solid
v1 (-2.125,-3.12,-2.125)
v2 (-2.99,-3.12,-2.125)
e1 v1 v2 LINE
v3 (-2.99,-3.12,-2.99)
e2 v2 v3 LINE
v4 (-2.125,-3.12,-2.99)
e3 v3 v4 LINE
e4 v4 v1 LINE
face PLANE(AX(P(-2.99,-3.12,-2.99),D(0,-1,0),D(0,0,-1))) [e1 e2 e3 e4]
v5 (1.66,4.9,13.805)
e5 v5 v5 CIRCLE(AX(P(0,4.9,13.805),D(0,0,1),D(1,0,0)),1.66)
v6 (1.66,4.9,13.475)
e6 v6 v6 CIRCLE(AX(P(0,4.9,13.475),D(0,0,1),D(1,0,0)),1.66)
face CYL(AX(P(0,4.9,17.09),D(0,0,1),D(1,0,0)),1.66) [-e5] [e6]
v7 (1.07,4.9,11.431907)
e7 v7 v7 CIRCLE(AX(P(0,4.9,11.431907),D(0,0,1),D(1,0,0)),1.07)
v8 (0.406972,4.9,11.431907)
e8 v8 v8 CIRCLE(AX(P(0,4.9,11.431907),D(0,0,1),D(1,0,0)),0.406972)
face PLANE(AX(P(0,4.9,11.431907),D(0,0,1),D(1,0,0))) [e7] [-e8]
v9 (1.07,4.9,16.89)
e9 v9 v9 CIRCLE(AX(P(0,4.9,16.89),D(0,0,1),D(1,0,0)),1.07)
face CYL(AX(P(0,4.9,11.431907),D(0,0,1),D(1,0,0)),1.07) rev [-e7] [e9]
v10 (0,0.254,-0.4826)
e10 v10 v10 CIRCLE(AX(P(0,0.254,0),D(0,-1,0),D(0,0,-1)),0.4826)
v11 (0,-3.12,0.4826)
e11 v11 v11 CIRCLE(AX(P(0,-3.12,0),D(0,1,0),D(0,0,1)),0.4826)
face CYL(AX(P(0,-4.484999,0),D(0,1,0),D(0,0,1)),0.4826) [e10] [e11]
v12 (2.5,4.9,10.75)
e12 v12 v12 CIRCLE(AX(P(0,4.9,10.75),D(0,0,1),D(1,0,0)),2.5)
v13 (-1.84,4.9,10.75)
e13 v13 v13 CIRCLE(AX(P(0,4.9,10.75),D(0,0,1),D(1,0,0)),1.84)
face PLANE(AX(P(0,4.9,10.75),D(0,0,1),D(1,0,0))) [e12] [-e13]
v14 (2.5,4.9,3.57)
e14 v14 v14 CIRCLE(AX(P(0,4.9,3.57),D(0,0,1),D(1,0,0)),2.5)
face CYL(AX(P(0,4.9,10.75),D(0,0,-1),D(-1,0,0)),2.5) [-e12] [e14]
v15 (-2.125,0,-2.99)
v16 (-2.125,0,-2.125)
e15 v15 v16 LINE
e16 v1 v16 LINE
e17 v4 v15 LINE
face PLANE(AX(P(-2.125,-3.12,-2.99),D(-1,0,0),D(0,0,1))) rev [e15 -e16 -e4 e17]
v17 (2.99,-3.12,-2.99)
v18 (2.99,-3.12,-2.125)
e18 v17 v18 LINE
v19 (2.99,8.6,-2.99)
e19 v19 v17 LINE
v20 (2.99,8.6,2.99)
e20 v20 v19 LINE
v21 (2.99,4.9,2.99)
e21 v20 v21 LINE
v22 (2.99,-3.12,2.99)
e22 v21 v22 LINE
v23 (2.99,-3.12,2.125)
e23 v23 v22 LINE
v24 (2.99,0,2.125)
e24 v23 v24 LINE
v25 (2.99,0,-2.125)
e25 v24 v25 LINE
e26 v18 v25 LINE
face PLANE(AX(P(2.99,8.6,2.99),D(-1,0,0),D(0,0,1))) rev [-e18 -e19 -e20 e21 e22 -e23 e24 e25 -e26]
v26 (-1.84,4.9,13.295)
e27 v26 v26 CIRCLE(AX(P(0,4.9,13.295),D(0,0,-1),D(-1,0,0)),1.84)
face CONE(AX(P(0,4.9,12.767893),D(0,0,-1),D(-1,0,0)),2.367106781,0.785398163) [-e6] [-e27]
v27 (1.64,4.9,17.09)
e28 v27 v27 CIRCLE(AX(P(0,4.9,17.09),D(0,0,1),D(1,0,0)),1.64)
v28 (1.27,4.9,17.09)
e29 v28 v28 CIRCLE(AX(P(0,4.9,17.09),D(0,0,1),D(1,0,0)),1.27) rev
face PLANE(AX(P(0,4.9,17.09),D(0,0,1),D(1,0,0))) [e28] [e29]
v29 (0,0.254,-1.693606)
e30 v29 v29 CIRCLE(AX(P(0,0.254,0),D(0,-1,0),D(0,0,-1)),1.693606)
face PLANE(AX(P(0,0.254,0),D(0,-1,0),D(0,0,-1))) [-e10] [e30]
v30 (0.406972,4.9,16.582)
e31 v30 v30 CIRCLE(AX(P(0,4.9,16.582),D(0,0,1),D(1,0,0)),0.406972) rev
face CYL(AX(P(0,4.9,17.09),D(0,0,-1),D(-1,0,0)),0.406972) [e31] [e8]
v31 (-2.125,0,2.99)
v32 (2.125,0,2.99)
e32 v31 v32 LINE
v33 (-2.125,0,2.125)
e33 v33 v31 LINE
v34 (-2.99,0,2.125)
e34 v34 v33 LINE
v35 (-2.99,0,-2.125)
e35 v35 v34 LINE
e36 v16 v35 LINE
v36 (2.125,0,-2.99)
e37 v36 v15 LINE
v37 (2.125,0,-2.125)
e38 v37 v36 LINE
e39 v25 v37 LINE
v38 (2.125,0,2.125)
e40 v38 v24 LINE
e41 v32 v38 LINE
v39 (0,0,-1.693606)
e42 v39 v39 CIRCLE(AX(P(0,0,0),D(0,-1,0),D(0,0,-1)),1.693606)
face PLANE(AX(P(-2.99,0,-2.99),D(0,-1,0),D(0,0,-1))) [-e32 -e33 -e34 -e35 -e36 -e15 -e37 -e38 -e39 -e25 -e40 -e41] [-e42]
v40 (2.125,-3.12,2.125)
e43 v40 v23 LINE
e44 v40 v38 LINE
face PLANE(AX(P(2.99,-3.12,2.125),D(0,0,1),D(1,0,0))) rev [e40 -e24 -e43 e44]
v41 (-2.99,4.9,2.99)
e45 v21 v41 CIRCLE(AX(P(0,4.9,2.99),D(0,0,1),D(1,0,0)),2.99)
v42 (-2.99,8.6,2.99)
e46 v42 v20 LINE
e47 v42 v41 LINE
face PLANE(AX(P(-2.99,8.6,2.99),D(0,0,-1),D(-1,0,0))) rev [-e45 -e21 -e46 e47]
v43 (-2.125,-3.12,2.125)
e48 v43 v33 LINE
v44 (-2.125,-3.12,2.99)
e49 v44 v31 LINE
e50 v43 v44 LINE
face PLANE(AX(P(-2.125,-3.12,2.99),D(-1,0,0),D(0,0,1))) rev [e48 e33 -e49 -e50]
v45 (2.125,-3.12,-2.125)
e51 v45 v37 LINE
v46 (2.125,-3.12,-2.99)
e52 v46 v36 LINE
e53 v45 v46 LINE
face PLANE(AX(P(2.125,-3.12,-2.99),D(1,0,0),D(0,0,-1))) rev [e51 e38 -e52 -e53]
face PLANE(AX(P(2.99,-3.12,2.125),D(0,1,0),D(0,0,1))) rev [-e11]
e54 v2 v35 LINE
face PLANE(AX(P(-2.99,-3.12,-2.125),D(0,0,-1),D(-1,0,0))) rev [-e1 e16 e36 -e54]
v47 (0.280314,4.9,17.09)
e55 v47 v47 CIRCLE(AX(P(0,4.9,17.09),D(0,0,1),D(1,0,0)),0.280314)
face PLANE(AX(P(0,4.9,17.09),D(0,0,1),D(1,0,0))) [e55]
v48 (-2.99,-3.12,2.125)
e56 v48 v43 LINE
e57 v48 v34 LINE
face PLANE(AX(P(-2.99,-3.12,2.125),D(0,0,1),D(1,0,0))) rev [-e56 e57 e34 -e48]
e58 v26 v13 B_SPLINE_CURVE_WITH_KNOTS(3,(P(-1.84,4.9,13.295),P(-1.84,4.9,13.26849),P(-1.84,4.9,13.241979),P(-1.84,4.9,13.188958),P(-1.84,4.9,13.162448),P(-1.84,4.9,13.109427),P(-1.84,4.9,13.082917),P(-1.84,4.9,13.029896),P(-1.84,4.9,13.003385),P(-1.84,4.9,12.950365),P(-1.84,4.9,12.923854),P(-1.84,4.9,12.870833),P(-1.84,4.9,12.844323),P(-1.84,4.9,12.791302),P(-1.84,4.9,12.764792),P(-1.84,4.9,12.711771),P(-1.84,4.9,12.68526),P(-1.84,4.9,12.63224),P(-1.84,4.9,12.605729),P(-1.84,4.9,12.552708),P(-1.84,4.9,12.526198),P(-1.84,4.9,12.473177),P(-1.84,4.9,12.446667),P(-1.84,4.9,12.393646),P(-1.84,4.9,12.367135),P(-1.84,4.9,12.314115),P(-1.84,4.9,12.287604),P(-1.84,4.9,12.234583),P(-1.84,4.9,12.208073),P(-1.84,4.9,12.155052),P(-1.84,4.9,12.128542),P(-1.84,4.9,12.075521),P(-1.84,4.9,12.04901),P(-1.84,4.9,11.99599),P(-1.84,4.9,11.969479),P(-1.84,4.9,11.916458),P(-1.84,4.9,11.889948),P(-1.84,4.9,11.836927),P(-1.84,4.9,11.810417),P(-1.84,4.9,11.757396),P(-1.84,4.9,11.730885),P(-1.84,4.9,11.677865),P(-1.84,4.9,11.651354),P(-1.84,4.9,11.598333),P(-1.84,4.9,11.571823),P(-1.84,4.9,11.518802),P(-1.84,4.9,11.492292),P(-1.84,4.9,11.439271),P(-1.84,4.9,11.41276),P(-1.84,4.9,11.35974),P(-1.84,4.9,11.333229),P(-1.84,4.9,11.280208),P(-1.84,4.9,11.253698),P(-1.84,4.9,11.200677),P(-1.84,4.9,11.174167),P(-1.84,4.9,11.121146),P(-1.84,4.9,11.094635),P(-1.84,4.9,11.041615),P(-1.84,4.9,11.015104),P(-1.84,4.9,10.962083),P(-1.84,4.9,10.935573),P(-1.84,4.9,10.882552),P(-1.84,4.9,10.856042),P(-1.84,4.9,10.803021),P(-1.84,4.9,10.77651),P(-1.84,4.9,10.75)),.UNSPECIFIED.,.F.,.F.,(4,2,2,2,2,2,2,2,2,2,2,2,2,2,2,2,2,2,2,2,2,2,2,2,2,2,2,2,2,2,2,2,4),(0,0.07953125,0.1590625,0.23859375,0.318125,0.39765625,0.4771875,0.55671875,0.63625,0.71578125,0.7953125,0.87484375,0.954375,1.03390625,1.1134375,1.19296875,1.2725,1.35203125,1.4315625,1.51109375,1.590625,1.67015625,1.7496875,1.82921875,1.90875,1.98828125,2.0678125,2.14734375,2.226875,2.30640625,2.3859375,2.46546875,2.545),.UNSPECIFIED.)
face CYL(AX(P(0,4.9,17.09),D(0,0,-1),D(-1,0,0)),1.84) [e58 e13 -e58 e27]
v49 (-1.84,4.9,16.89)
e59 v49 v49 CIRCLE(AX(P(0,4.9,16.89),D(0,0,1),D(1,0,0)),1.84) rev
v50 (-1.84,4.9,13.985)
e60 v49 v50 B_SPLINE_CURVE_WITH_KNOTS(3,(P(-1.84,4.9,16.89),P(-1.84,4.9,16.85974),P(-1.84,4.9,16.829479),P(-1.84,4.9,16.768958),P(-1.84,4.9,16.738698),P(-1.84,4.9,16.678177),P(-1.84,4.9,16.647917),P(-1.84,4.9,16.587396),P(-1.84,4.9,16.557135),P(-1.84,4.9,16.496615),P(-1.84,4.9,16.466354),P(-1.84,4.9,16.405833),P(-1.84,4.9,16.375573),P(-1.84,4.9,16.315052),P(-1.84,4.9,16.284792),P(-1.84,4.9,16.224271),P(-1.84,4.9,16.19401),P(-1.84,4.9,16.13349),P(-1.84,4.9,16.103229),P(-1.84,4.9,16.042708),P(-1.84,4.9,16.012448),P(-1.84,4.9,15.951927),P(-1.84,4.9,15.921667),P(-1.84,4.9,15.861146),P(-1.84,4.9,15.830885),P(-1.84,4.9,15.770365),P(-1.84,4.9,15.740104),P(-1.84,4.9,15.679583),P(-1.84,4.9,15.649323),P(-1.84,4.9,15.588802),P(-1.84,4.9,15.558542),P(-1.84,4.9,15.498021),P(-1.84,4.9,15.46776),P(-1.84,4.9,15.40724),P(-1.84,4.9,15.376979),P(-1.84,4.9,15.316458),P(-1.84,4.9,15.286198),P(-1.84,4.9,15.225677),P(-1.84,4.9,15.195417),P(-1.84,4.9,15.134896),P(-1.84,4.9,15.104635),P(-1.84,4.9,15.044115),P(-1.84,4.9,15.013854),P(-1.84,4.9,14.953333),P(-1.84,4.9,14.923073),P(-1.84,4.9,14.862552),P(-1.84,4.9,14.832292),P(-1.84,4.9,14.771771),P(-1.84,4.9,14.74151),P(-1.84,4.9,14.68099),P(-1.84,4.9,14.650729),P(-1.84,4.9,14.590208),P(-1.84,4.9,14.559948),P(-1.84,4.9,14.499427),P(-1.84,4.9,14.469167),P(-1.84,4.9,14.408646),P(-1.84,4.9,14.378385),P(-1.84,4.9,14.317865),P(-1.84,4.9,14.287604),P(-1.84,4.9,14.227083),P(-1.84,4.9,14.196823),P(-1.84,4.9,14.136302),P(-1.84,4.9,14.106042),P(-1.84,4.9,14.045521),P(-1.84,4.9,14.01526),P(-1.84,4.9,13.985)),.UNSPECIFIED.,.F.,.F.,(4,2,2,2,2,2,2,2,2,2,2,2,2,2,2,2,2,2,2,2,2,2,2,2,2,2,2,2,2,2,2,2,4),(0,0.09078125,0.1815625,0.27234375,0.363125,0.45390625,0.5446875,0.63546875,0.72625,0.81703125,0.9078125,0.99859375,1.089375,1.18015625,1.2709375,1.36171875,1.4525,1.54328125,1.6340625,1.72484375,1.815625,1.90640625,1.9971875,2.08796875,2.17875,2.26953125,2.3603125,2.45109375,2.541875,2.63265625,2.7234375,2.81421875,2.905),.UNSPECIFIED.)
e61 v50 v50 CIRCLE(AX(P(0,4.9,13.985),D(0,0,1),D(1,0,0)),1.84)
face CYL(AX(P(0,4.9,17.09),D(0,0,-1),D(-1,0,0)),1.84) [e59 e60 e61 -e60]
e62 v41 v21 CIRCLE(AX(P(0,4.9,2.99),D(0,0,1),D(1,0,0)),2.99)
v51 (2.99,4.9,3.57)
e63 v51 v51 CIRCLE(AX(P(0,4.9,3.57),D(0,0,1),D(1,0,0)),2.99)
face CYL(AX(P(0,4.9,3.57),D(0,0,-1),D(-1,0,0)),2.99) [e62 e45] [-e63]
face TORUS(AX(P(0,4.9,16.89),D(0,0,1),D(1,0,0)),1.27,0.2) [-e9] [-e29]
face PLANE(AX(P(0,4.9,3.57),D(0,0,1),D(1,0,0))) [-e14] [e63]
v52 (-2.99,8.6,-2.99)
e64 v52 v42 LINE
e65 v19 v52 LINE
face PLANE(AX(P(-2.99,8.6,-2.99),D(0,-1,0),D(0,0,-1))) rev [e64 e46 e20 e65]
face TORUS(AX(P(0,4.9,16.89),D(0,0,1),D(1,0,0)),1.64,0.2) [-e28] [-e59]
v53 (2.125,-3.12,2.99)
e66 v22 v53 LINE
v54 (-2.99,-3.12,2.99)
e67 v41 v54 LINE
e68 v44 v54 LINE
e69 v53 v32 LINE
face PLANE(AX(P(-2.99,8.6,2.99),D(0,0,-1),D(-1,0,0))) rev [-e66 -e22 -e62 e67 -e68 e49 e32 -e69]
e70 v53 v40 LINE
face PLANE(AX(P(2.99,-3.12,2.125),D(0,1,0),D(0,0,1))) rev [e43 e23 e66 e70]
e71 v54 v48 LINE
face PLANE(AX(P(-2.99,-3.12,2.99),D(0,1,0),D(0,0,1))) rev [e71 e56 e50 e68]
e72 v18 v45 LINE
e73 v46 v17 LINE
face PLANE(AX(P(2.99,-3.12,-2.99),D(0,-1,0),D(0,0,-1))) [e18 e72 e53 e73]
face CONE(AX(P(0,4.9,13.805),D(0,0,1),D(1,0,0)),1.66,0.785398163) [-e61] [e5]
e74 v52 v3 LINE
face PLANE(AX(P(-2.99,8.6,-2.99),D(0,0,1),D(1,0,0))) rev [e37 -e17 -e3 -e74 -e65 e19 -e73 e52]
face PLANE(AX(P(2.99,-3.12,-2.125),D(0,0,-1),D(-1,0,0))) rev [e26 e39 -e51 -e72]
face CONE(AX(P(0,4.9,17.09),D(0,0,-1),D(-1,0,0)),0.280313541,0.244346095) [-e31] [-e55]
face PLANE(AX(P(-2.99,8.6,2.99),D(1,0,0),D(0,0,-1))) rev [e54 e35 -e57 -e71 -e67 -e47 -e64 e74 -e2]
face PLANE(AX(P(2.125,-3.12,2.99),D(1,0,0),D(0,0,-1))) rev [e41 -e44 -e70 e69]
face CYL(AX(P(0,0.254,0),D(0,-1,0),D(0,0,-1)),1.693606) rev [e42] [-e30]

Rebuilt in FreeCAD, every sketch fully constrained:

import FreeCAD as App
import Part
import Sketcher

V = App.Vector
Q = App.Units.Quantity


def edges_at(feature, points):
    """Names of the edges that pass closest to the given points."""
    edges = feature.Shape.Edges
    near = lambda p: min(range(len(edges)), key=lambda i: edges[i].distToShape(Part.Vertex(*p))[0])
    return sorted({f"Edge{near(p) + 1}" for p in points})


def add_polygon(sketch, points):
    """Adds a closed chain of lines whose ends are joined by coincident constraints."""
    first, n = sketch.GeometryCount, len(points)
    for a, b in zip(points, points[1:] + points[:1]):
        sketch.addGeometry(Part.LineSegment(App.Vector(*a, 0), App.Vector(*b, 0)), False)
    for i in range(n):
        sketch.addConstraint(Sketcher.Constraint("Coincident", first + i, 2, first + (i + 1) % n, 1))

doc = App.newDocument("Part")
body = doc.addObject("PartDesign::Body", "Body")

# Sketch on XZ plane
sketch1 = doc.addObject("Sketcher::SketchObject", "Sketch")
body.addObject(sketch1)
sketch1.AttachmentSupport = (doc.XZ_Plane, [""])
sketch1.MapMode = "FlatFace"
add_polygon(sketch1, [(-2.99, -2.99), (-2.99, 2.99), (2.99, 2.99), (2.99, -2.99)])  # lines 0-3
sketch1.addConstraint(Sketcher.Constraint("Vertical", 0))
sketch1.addConstraint(Sketcher.Constraint("Horizontal", 1))
sketch1.addConstraint(Sketcher.Constraint("Vertical", 2))
sketch1.addConstraint(Sketcher.Constraint("Horizontal", 3))
sketch1.addConstraint(Sketcher.Constraint("Symmetric", 0, 2, 2, 2, -1, 1))
sketch1.addConstraint(Sketcher.Constraint("Equal", 3, 0))
sketch1.addConstraint(Sketcher.Constraint("DistanceX", 1, 1, 1, 2, Q("5.98 mm")))
pad1 = doc.addObject("PartDesign::Pad", "Pad")
body.addObject(pad1)
pad1.Profile = sketch1
pad1.Length = 8.6
pad1.Reversed = True

# Sketch on XZ plane
sketch2 = doc.addObject("Sketcher::SketchObject", "Sketch001")
body.addObject(sketch2)
sketch2.AttachmentSupport = (doc.XZ_Plane, [""])
sketch2.MapMode = "FlatFace"
add_polygon(sketch2, [(2.125, 2.99), (2.125, 2.125), (2.99, 2.125), (2.99, 2.99)])  # lines 0-3
add_polygon(sketch2, [(2.125, -2.125), (2.125, -2.99), (2.99, -2.99), (2.99, -2.125)])  # lines 4-7
add_polygon(sketch2, [(-2.99, -2.125), (-2.99, -2.99), (-2.125, -2.99), (-2.125, -2.125)])  # lines 8-11
add_polygon(sketch2, [(-2.99, 2.99), (-2.99, 2.125), (-2.125, 2.125), (-2.125, 2.99)])  # lines 12-15
sketch2.addConstraint(Sketcher.Constraint("Vertical", 0))
sketch2.addConstraint(Sketcher.Constraint("Horizontal", 1))
sketch2.addConstraint(Sketcher.Constraint("Vertical", 2))
sketch2.addConstraint(Sketcher.Constraint("Horizontal", 3))
sketch2.addConstraint(Sketcher.Constraint("Vertical", 4))
sketch2.addConstraint(Sketcher.Constraint("Horizontal", 5))
sketch2.addConstraint(Sketcher.Constraint("Vertical", 6))
sketch2.addConstraint(Sketcher.Constraint("Horizontal", 7))
sketch2.addConstraint(Sketcher.Constraint("Vertical", 8))
sketch2.addConstraint(Sketcher.Constraint("Horizontal", 9))
sketch2.addConstraint(Sketcher.Constraint("Vertical", 10))
sketch2.addConstraint(Sketcher.Constraint("Horizontal", 11))
sketch2.addConstraint(Sketcher.Constraint("Vertical", 12))
sketch2.addConstraint(Sketcher.Constraint("Horizontal", 13))
sketch2.addConstraint(Sketcher.Constraint("Vertical", 14))
sketch2.addConstraint(Sketcher.Constraint("Horizontal", 15))
sketch2.addConstraint(Sketcher.Constraint("Symmetric", 2, 2, 8, 2, -1, 1))
sketch2.addConstraint(Sketcher.Constraint("Symmetric", 0, 2, 10, 2, -1, 1))
sketch2.addConstraint(Sketcher.Constraint("Symmetric", 6, 2, 12, 2, -1, 1))
sketch2.addConstraint(Sketcher.Constraint("Symmetric", 4, 2, 14, 2, -1, 1))
sketch2.addConstraint(Sketcher.Constraint("Symmetric", 5, 2, 8, 2, -2))
sketch2.addConstraint(Sketcher.Constraint("Symmetric", 7, 2, 10, 2, -2))
sketch2.addConstraint(Sketcher.Constraint("Equal", 15, 0))
sketch2.addConstraint(Sketcher.Constraint("DistanceX", 1, 1, 1, 2, Q("0.865 mm")))
sketch2.addConstraint(Sketcher.Constraint("DistanceX", -1, 1, 1, 2, Q("2.99 mm")))
sketch2.addConstraint(Sketcher.Constraint("DistanceY", -1, 1, 2, 2, Q("2.99 mm")))
pad2 = doc.addObject("PartDesign::Pad", "Pad001")
body.addObject(pad2)
pad2.Profile = sketch2
pad2.Length = 3.12

# Sketch on XZ plane
sketch3 = doc.addObject("Sketcher::SketchObject", "Sketch002")
body.addObject(sketch3)
sketch3.AttachmentSupport = (doc.XZ_Plane, [""])
sketch3.MapMode = "FlatFace"
sketch3.addGeometry(Part.Circle(V(0, 0, 0), V(0, 0, 1), 1.693606), False)
sketch3.addConstraint(Sketcher.Constraint("Coincident", 0, 3, -1, 1))
sketch3.addConstraint(Sketcher.Constraint("Diameter", 0, Q("3.387211 mm")))
pocket1 = doc.addObject("PartDesign::Pocket", "Pocket")
body.addObject(pocket1)
pocket1.Profile = sketch3
pocket1.Length = 0.254

# Sketch on XZ plane
sketch4 = doc.addObject("Sketcher::SketchObject", "Sketch003")
body.addObject(sketch4)
sketch4.AttachmentSupport = (doc.XZ_Plane, [""])
sketch4.MapMode = "FlatFace"
sketch4.AttachmentOffset = App.Placement(V(0, 0, -0.254), App.Rotation())
sketch4.addGeometry(Part.Circle(V(0, 0, 0), V(0, 0, 1), 0.4826), False)
sketch4.addConstraint(Sketcher.Constraint("Coincident", 0, 3, -1, 1))
sketch4.addConstraint(Sketcher.Constraint("Diameter", 0, Q("0.9652 mm")))
pad3 = doc.addObject("PartDesign::Pad", "Pad002")
body.addObject(pad3)
pad3.Profile = sketch4
pad3.Length = 3.374

# Sketch on XY plane
sketch5 = doc.addObject("Sketcher::SketchObject", "Sketch004")
body.addObject(sketch5)
sketch5.AttachmentSupport = (doc.XY_Plane, [""])
sketch5.MapMode = "FlatFace"
sketch5.AttachmentOffset = App.Placement(V(0, 0, 2.99), App.Rotation())
sketch5.addGeometry(Part.Circle(V(0, 4.9, 0), V(0, 0, 1), 2.99), False)
sketch5.addConstraint(Sketcher.Constraint("PointOnObject", 0, 3, -2))
sketch5.addConstraint(Sketcher.Constraint("Diameter", 0, Q("5.98 mm")))
sketch5.addConstraint(Sketcher.Constraint("DistanceY", -1, 1, 0, 3, Q("4.9 mm")))
pad4 = doc.addObject("PartDesign::Pad", "Pad003")
body.addObject(pad4)
pad4.Profile = sketch5
pad4.Length = 0.58

# Sketch on XY plane
sketch6 = doc.addObject("Sketcher::SketchObject", "Sketch005")
body.addObject(sketch6)
sketch6.AttachmentSupport = (doc.XY_Plane, [""])
sketch6.MapMode = "FlatFace"
sketch6.AttachmentOffset = App.Placement(V(0, 0, 3.57), App.Rotation())
sketch6.addGeometry(Part.Circle(V(0, 4.9, 0), V(0, 0, 1), 2.5), False)
sketch6.addConstraint(Sketcher.Constraint("PointOnObject", 0, 3, -2))
sketch6.addConstraint(Sketcher.Constraint("Diameter", 0, Q("5 mm")))
sketch6.addConstraint(Sketcher.Constraint("DistanceY", -1, 1, 0, 3, Q("4.9 mm")))
pad5 = doc.addObject("PartDesign::Pad", "Pad004")
body.addObject(pad5)
pad5.Profile = sketch6
pad5.Length = 7.18

# Sketch on XY plane
sketch7 = doc.addObject("Sketcher::SketchObject", "Sketch006")
body.addObject(sketch7)
sketch7.AttachmentSupport = (doc.XY_Plane, [""])
sketch7.MapMode = "FlatFace"
sketch7.AttachmentOffset = App.Placement(V(0, 0, 10.75), App.Rotation())
sketch7.addGeometry(Part.Circle(V(0, 4.9, 0), V(0, 0, 1), 1.84), False)
sketch7.addConstraint(Sketcher.Constraint("PointOnObject", 0, 3, -2))
sketch7.addConstraint(Sketcher.Constraint("Diameter", 0, Q("3.68 mm")))
sketch7.addConstraint(Sketcher.Constraint("DistanceY", -1, 1, 0, 3, Q("4.9 mm")))
pad6 = doc.addObject("PartDesign::Pad", "Pad005")
body.addObject(pad6)
pad6.Profile = sketch7
pad6.Length = 6.34

# Sketch on XZ plane
sketch8 = doc.addObject("Sketcher::SketchObject", "Sketch007")
body.addObject(sketch8)
sketch8.AttachmentSupport = (doc.XZ_Plane, [""])
sketch8.MapMode = "FlatFace"
sketch8.AttachmentOffset = App.Placement(V(0, 0, -4.9), App.Rotation())
add_polygon(sketch8, [(1.66, 13.805), (2.367107, 14.512107), (2.367107, 12.767893), (1.66, 13.475)])  # lines 0-3
sketch8.addConstraint(Sketcher.Constraint("Vertical", 1))
sketch8.addConstraint(Sketcher.Constraint("Vertical", 3))
sketch8.addConstraint(Sketcher.Constraint("Perpendicular", 0, 2))
sketch8.addConstraint(Sketcher.Constraint("Equal", 0, 2))
sketch8.addConstraint(Sketcher.Constraint("Distance", 0, Q("1 mm")))
sketch8.addConstraint(Sketcher.Constraint("DistanceY", 3, 1, 3, 2, Q("0.33 mm")))
sketch8.addConstraint(Sketcher.Constraint("DistanceX", -1, 1, 2, 2, Q("1.66 mm")))
sketch8.addConstraint(Sketcher.Constraint("DistanceY", -1, 1, 2, 2, Q("13.475 mm")))
groove = doc.addObject("PartDesign::Groove", "Groove")
body.addObject(groove)
groove.Profile = sketch8
groove.ReferenceAxis = (sketch8, ["V_Axis"])
groove.Angle = 360

# Sketch on XY plane
sketch9 = doc.addObject("Sketcher::SketchObject", "Sketch008")
body.addObject(sketch9)
sketch9.AttachmentSupport = (doc.XY_Plane, [""])
sketch9.MapMode = "FlatFace"
sketch9.AttachmentOffset = App.Placement(V(0, 0, 17.09), App.Rotation())
sketch9.addGeometry(Part.Circle(V(0, 4.9, 0), V(0, 0, 1), 1.07), False)
sketch9.addConstraint(Sketcher.Constraint("PointOnObject", 0, 3, -2))
sketch9.addConstraint(Sketcher.Constraint("Diameter", 0, Q("2.14 mm")))
sketch9.addConstraint(Sketcher.Constraint("DistanceY", -1, 1, 0, 3, Q("4.9 mm")))
pocket2 = doc.addObject("PartDesign::Pocket", "Pocket001")
body.addObject(pocket2)
pocket2.Profile = sketch9
pocket2.Length = 5.658093

# Sketch on XY plane
sketch10 = doc.addObject("Sketcher::SketchObject", "Sketch009")
body.addObject(sketch10)
sketch10.AttachmentSupport = (doc.XY_Plane, [""])
sketch10.MapMode = "FlatFace"
sketch10.AttachmentOffset = App.Placement(V(0, 0, 11.431907), App.Rotation())
sketch10.addGeometry(Part.Circle(V(0, 4.9, 0), V(0, 0, 1), 0.406972), False)
sketch10.addConstraint(Sketcher.Constraint("PointOnObject", 0, 3, -2))
sketch10.addConstraint(Sketcher.Constraint("DistanceY", -1, 1, 0, 3, Q("4.9 mm")))
sketch10.addConstraint(Sketcher.Constraint("Diameter", 0, Q("0.813944 mm")))
pad7 = doc.addObject("PartDesign::Pad", "Pad006")
body.addObject(pad7)
pad7.Profile = sketch10
pad7.Length = 5.658093
doc.recompute()

chamfer = doc.addObject("PartDesign::Chamfer", "Chamfer")
body.addObject(chamfer)
chamfer.Base = (pad7, edges_at(pad7, [(-0.407, 4.9, 17.09)]))
chamfer.ChamferType = "Two distances"
chamfer.Size = 0.508
chamfer.Size2 = 0.126659
doc.recompute()

fillet = doc.addObject("PartDesign::Fillet", "Fillet")
body.addObject(fillet)
fillet.Base = (chamfer, edges_at(chamfer, [(1.84, 4.9, 17.09), (-1.07, 4.9, 17.09)]))
fillet.Radius = 0.2

doc.recompute()
